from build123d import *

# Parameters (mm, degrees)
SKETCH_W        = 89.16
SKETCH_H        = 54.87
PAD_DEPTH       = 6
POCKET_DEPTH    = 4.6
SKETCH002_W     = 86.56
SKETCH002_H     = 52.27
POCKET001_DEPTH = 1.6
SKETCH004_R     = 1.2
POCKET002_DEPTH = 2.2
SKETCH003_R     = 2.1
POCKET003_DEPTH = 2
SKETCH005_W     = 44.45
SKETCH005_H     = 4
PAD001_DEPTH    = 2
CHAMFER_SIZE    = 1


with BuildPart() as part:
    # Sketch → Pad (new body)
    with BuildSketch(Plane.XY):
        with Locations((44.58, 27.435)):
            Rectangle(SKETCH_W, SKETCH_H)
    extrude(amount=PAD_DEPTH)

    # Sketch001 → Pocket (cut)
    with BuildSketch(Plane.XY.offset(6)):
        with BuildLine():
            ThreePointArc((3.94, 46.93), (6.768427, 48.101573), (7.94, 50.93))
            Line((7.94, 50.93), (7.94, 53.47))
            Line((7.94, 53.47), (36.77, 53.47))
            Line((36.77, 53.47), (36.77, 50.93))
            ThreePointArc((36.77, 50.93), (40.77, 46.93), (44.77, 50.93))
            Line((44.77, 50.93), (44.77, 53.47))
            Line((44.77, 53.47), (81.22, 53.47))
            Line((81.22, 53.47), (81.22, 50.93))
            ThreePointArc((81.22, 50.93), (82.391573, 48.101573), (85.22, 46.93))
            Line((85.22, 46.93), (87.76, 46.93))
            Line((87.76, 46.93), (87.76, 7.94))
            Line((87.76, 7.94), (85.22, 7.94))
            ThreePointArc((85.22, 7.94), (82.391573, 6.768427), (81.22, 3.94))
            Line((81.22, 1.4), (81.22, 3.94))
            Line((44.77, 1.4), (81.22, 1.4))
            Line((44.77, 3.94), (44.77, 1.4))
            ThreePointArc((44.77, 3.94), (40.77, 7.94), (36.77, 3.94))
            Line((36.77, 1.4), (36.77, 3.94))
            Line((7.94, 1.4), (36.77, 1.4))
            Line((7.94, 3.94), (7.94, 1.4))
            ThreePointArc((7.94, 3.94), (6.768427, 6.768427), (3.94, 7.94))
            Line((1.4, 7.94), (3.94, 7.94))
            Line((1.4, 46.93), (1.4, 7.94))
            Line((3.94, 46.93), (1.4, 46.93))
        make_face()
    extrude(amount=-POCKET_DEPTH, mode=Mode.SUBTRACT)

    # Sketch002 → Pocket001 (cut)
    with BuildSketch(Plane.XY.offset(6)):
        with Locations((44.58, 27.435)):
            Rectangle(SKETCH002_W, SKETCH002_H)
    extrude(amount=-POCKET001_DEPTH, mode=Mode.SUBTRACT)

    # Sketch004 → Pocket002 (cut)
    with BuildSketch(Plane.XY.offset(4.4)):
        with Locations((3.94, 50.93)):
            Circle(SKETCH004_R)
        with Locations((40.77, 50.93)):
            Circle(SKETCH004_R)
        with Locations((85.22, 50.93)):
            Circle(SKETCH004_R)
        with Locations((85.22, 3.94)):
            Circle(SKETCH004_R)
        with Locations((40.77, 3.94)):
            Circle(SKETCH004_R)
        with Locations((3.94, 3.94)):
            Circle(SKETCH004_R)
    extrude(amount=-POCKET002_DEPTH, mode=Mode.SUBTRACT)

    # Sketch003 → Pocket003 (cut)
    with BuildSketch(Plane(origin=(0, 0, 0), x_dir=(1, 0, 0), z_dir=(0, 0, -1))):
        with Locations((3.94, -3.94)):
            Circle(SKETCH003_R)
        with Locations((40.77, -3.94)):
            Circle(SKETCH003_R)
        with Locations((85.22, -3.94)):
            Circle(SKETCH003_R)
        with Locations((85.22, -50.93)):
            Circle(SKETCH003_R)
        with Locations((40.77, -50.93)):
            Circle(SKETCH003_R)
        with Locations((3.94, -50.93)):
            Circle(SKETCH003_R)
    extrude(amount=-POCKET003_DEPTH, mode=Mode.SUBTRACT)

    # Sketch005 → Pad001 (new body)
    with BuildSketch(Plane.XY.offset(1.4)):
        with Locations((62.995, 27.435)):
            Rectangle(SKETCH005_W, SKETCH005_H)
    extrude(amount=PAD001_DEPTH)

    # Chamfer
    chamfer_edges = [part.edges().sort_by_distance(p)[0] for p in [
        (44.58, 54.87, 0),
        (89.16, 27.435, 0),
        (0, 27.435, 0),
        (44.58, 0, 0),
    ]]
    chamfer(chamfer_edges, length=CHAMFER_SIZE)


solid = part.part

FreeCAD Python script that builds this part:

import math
import FreeCAD as App
import Part
import Sketcher


def edges_at(feature, points):
    """Names of the edges that pass closest to the given points."""
    edges = feature.Shape.Edges
    near = lambda p: min(range(len(edges)), key=lambda i: edges[i].distToShape(Part.Vertex(*p))[0])
    return sorted({f"Edge{near(p) + 1}" for p in points})

doc = App.newDocument("Part")
params = doc.addObject("Spreadsheet::Sheet", "Params")
for row, (alias, value) in enumerate([
    ("sketch1_width", "89.16 mm"),
    ("sketch1_height", "54.87 mm"),
    ("pad1_length", "6 mm"),
    ("sketch2_radius", "4 mm"),
    ("sketch2_width", "2.54 mm"),
    ("sketch2_width2", "28.83 mm"),
    ("sketch2_width3", "36.45 mm"),
    ("sketch2_height", "38.99 mm"),
    ("pocket1_length", "4.6 mm"),
    ("sketch3_width", "86.56 mm"),
    ("sketch3_height", "52.27 mm"),
    ("pocket2_length", "1.6 mm"),
    ("sketch4_diameter", "2.4 mm"),
    ("pocket3_length", "2.2 mm"),
    ("sketch5_diameter", "4.2 mm"),
    ("pocket4_length", "2 mm"),
    ("sketch6_height", "4 mm"),
    ("sketch6_width", "44.45 mm"),
    ("pad2_length", "2 mm"),
    ("chamfer_size", "1 mm"),
], start=1):
    params.set(f"A{row}", alias)
    params.set(f"B{row}", "=" + value)
    params.setAlias(f"B{row}", alias)

body = doc.addObject("PartDesign::Body", "Body")

sketch1 = body.newObject("Sketcher::SketchObject", "Sketch")
sketch1.AttachmentSupport = (doc.getObject("XY_Plane"), [""])
sketch1.MapMode = "FlatFace"
sketch1.addGeometry([
    Part.LineSegment(App.Vector(0, 54.87, 0), App.Vector(0, 0, 0)),
    Part.LineSegment(App.Vector(0, 0, 0), App.Vector(89.16, 0, 0)),
    Part.LineSegment(App.Vector(89.16, 0, 0), App.Vector(89.16, 54.87, 0)),
    Part.LineSegment(App.Vector(89.16, 54.87, 0), App.Vector(0, 54.87, 0)),
], False)
sketch1.addConstraint([
    Sketcher.Constraint("Coincident", 0, 2, 1, 1),
    Sketcher.Constraint("Coincident", 1, 2, 2, 1),
    Sketcher.Constraint("Coincident", 2, 2, 3, 1),
    Sketcher.Constraint("Coincident", 3, 2, 0, 1),
    Sketcher.Constraint("Vertical", 0),
    Sketcher.Constraint("Horizontal", 1),
    Sketcher.Constraint("Vertical", 2),
    Sketcher.Constraint("Horizontal", 3),
    Sketcher.Constraint("Coincident", 0, 2, -1, 1),
    Sketcher.Constraint("DistanceX", 1, 1, 1, 2, 89.16),
    Sketcher.Constraint("DistanceY", 0, 2, 0, 1, 54.87),
])
sketch1.setExpression("Constraints[9]", "Params.sketch1_width")
sketch1.setExpression("Constraints[10]", "Params.sketch1_height")
pad1 = body.newObject("PartDesign::Pad", "Pad")
pad1.Profile = sketch1
pad1.setExpression("Length", "Params.pad1_length")

sketch2 = body.newObject("Sketcher::SketchObject", "Sketch001")
sketch2.AttachmentSupport = (doc.getObject("XY_Plane"), [""])
sketch2.MapMode = "FlatFace"
sketch2.AttachmentOffset = App.Placement(App.Vector(0, 0, 6), App.Rotation())
sketch2.addGeometry([
    Part.ArcOfCircle(Part.Circle(App.Vector(3.94, 50.93, 0), App.Vector(0, 0, 1), 4), math.radians(-89.999994), math.radians(-0.000006)),
    Part.LineSegment(App.Vector(3.94, 46.93, 0), App.Vector(1.4, 46.93, 0)),
    Part.LineSegment(App.Vector(1.4, 46.93, 0), App.Vector(1.4, 7.94, 0)),
    Part.LineSegment(App.Vector(1.4, 7.94, 0), App.Vector(3.94, 7.94, 0)),
    Part.ArcOfCircle(Part.Circle(App.Vector(3.94, 3.94, 0), App.Vector(0, 0, 1), 4), math.radians(0.000006), math.radians(89.999994)),
    Part.LineSegment(App.Vector(7.94, 3.94, 0), App.Vector(7.94, 1.4, 0)),
    Part.LineSegment(App.Vector(7.94, 1.4, 0), App.Vector(36.77, 1.4, 0)),
    Part.LineSegment(App.Vector(36.77, 1.4, 0), App.Vector(36.77, 3.94, 0)),
    Part.ArcOfCircle(Part.Circle(App.Vector(40.77, 3.94, 0), App.Vector(0, 0, 1), 4), math.radians(0), math.radians(180)),
    Part.LineSegment(App.Vector(44.77, 3.94, 0), App.Vector(44.77, 1.4, 0)),
    Part.LineSegment(App.Vector(44.77, 1.4, 0), App.Vector(81.22, 1.4, 0)),
    Part.LineSegment(App.Vector(81.22, 1.4, 0), App.Vector(81.22, 3.94, 0)),
    Part.ArcOfCircle(Part.Circle(App.Vector(85.22, 3.94, 0), App.Vector(0, 0, 1), 4), math.radians(90.000006), math.radians(179.999994)),
    Part.LineSegment(App.Vector(85.22, 7.94, 0), App.Vector(87.76, 7.94, 0)),
    Part.LineSegment(App.Vector(87.76, 7.94, 0), App.Vector(87.76, 46.93, 0)),
    Part.LineSegment(App.Vector(87.76, 46.93, 0), App.Vector(85.22, 46.93, 0)),
    Part.ArcOfCircle(Part.Circle(App.Vector(85.22, 50.93, 0), App.Vector(0, 0, 1), 4), math.radians(-179.999994), math.radians(-90.000006)),
    Part.LineSegment(App.Vector(81.22, 50.93, 0), App.Vector(81.22, 53.47, 0)),
    Part.LineSegment(App.Vector(81.22, 53.47, 0), App.Vector(44.77, 53.47, 0)),
    Part.LineSegment(App.Vector(44.77, 53.47, 0), App.Vector(44.77, 50.93, 0)),
    Part.ArcOfCircle(Part.Circle(App.Vector(40.77, 50.93, 0), App.Vector(0, 0, 1), 4), math.radians(180), math.radians(360)),
    Part.LineSegment(App.Vector(36.77, 50.93, 0), App.Vector(36.77, 53.47, 0)),
    Part.LineSegment(App.Vector(36.77, 53.47, 0), App.Vector(7.94, 53.47, 0)),
    Part.LineSegment(App.Vector(7.94, 53.47, 0), App.Vector(7.94, 50.93, 0)),
], False)
sketch2.addConstraint([
    Sketcher.Constraint("Tangent", 0, 1, 1, 1),
    Sketcher.Constraint("Coincident", 1, 2, 2, 1),
    Sketcher.Constraint("Coincident", 2, 2, 3, 1),
    Sketcher.Constraint("Tangent", 3, 2, 4, 2),
    Sketcher.Constraint("Tangent", 4, 1, 5, 1),
    Sketcher.Constraint("Coincident", 5, 2, 6, 1),
    Sketcher.Constraint("Coincident", 6, 2, 7, 1),
    Sketcher.Constraint("Tangent", 7, 2, 8, 2),
    Sketcher.Constraint("Tangent", 8, 1, 9, 1),
    Sketcher.Constraint("Coincident", 9, 2, 10, 1),
    Sketcher.Constraint("Coincident", 10, 2, 11, 1),
    Sketcher.Constraint("Tangent", 11, 2, 12, 2),
    Sketcher.Constraint("Tangent", 12, 1, 13, 1),
    Sketcher.Constraint("Coincident", 13, 2, 14, 1),
    Sketcher.Constraint("Coincident", 14, 2, 15, 1),
    Sketcher.Constraint("Tangent", 15, 2, 16, 2),
    Sketcher.Constraint("Tangent", 16, 1, 17, 1),
    Sketcher.Constraint("Coincident", 17, 2, 18, 1),
    Sketcher.Constraint("Coincident", 18, 2, 19, 1),
    Sketcher.Constraint("Tangent", 19, 2, 20, 2),
    Sketcher.Constraint("Tangent", 20, 1, 21, 1),
    Sketcher.Constraint("Coincident", 21, 2, 22, 1),
    Sketcher.Constraint("Coincident", 22, 2, 23, 1),
    Sketcher.Constraint("Tangent", 23, 2, 0, 2),
    Sketcher.Constraint("Horizontal", 1),
    Sketcher.Constraint("Vertical", 2),
    Sketcher.Constraint("Horizontal", 3),
    Sketcher.Constraint("Vertical", 5),
    Sketcher.Constraint("Horizontal", 6),
    Sketcher.Constraint("Vertical", 7),
    Sketcher.Constraint("Vertical", 9),
    Sketcher.Constraint("Horizontal", 10),
    Sketcher.Constraint("Vertical", 11),
    Sketcher.Constraint("Horizontal", 13),
    Sketcher.Constraint("Vertical", 14),
    Sketcher.Constraint("Horizontal", 15),
    Sketcher.Constraint("Vertical", 17),
    Sketcher.Constraint("Horizontal", 18),
    Sketcher.Constraint("Vertical", 19),
    Sketcher.Constraint("Vertical", 21),
    Sketcher.Constraint("Horizontal", 22),
    Sketcher.Constraint("Vertical", 23),
    Sketcher.Constraint("Equal", 0, 4),
    Sketcher.Constraint("Equal", 4, 8),
    Sketcher.Constraint("Equal", 8, 12),
    Sketcher.Constraint("Equal", 12, 16),
    Sketcher.Constraint("Equal", 16, 20),
    Sketcher.Constraint("Horizontal", 4, 3, 8, 3),
    Sketcher.Constraint("Horizontal", 8, 3, 12, 3),
    Sketcher.Constraint("Horizontal", 0, 3, 16, 3),
    Sketcher.Constraint("Horizontal", 16, 3, 20, 3),
    Sketcher.Constraint("Horizontal", 6, 2, 9, 2),
    Sketcher.Constraint("Horizontal", 18, 2, 21, 2),
    Sketcher.Constraint("Vertical", 0, 3, 4, 3),
    Sketcher.Constraint("Vertical", 12, 3, 16, 3),
    Sketcher.Constraint("Vertical", 8, 3, 20, 3),
    Sketcher.Constraint("Equal", 3, 13),
    Sketcher.Constraint("Equal", 15, 5),
    Sketcher.Constraint("Equal", 11, 17),
    Sketcher.Constraint("Radius", 0, 4.0),
    Sketcher.Constraint("DistanceX", 1, 2, 1, 1, 2.54),
    Sketcher.Constraint("DistanceX", 6, 1, 6, 2, 28.83),
    Sketcher.Constraint("DistanceX", 10, 1, 10, 2, 36.45),
    Sketcher.Constraint("DistanceY", 2, 2, 2, 1, 38.99),
    Sketcher.Constraint("DistanceX", -1, 1, 1, 2, 1.4),
    Sketcher.Constraint("DistanceY", -1, 1, 5, 2, 1.4),
])
sketch2.setExpression("Constraints[59]", "Params.sketch2_radius")
sketch2.setExpression("Constraints[60]", "Params.sketch2_width")
sketch2.setExpression("Constraints[61]", "Params.sketch2_width2")
sketch2.setExpression("Constraints[62]", "Params.sketch2_width3")
sketch2.setExpression("Constraints[63]", "Params.sketch2_height")
pocket1 = body.newObject("PartDesign::Pocket", "Pocket")
pocket1.Profile = sketch2
pocket1.setExpression("Length", "Params.pocket1_length")

sketch3 = body.newObject("Sketcher::SketchObject", "Sketch002")
sketch3.AttachmentSupport = (doc.getObject("XY_Plane"), [""])
sketch3.MapMode = "FlatFace"
sketch3.AttachmentOffset = App.Placement(App.Vector(0, 0, 6), App.Rotation())
sketch3.addGeometry([
    Part.LineSegment(App.Vector(1.3, 53.57, 0), App.Vector(1.3, 1.3, 0)),
    Part.LineSegment(App.Vector(1.3, 1.3, 0), App.Vector(87.86, 1.3, 0)),
    Part.LineSegment(App.Vector(87.86, 1.3, 0), App.Vector(87.86, 53.57, 0)),
    Part.LineSegment(App.Vector(87.86, 53.57, 0), App.Vector(1.3, 53.57, 0)),
], False)
sketch3.addConstraint([
    Sketcher.Constraint("Coincident", 0, 2, 1, 1),
    Sketcher.Constraint("Coincident", 1, 2, 2, 1),
    Sketcher.Constraint("Coincident", 2, 2, 3, 1),
    Sketcher.Constraint("Coincident", 3, 2, 0, 1),
    Sketcher.Constraint("Vertical", 0),
    Sketcher.Constraint("Horizontal", 1),
    Sketcher.Constraint("Vertical", 2),
    Sketcher.Constraint("Horizontal", 3),
    Sketcher.Constraint("DistanceX", 1, 1, 1, 2, 86.56),
    Sketcher.Constraint("DistanceY", 0, 2, 0, 1, 52.27),
    Sketcher.Constraint("DistanceX", -1, 1, 0, 2, 1.3),
    Sketcher.Constraint("DistanceY", -1, 1, 0, 2, 1.3),
])
sketch3.setExpression("Constraints[8]", "Params.sketch3_width")
sketch3.setExpression("Constraints[9]", "Params.sketch3_height")
pocket2 = body.newObject("PartDesign::Pocket", "Pocket001")
pocket2.Profile = sketch3
pocket2.setExpression("Length", "Params.pocket2_length")

sketch4 = body.newObject("Sketcher::SketchObject", "Sketch003")
sketch4.AttachmentSupport = (doc.getObject("XY_Plane"), [""])
sketch4.MapMode = "FlatFace"
sketch4.AttachmentOffset = App.Placement(App.Vector(0, 0, 4.4), App.Rotation())
sketch4.addGeometry([
    Part.Circle(App.Vector(3.94, 50.93, 0), App.Vector(0, 0, 1), 1.2),
    Part.Circle(App.Vector(40.77, 50.93, 0), App.Vector(0, 0, 1), 1.2),
    Part.Circle(App.Vector(85.22, 50.93, 0), App.Vector(0, 0, 1), 1.2),
    Part.Circle(App.Vector(85.22, 3.94, 0), App.Vector(0, 0, 1), 1.2),
    Part.Circle(App.Vector(40.77, 3.94, 0), App.Vector(0, 0, 1), 1.2),
    Part.Circle(App.Vector(3.94, 3.94, 0), App.Vector(0, 0, 1), 1.2),
], False)
sketch4.addConstraint([
    Sketcher.Constraint("Equal", 0, 1),
    Sketcher.Constraint("Equal", 1, 2),
    Sketcher.Constraint("Equal", 2, 3),
    Sketcher.Constraint("Equal", 3, 4),
    Sketcher.Constraint("Equal", 4, 5),
    Sketcher.Constraint("Horizontal", 0, 3, 1, 3),
    Sketcher.Constraint("Horizontal", 1, 3, 2, 3),
    Sketcher.Constraint("Horizontal", 3, 3, 4, 3),
    Sketcher.Constraint("Horizontal", 4, 3, 5, 3),
    Sketcher.Constraint("Vertical", 2, 3, 3, 3),
    Sketcher.Constraint("Vertical", 1, 3, 4, 3),
    Sketcher.Constraint("Vertical", 0, 3, 5, 3),
    Sketcher.Constraint("Diameter", 0, 2.4),
    Sketcher.Constraint("DistanceX", -1, 1, 0, 3, 3.94),
    Sketcher.Constraint("DistanceY", -1, 1, 0, 3, 50.93),
    Sketcher.Constraint("DistanceX", -1, 1, 1, 3, 40.77),
    Sketcher.Constraint("DistanceX", -1, 1, 2, 3, 85.22),
    Sketcher.Constraint("DistanceY", -1, 1, 3, 3, 3.94),
])
sketch4.setExpression("Constraints[12]", "Params.sketch4_diameter")
pocket3 = body.newObject("PartDesign::Pocket", "Pocket002")
pocket3.Profile = sketch4
pocket3.setExpression("Length", "Params.pocket3_length")

sketch5 = body.newObject("Sketcher::SketchObject", "Sketch004")
sketch5.AttachmentSupport = (doc.getObject("XY_Plane"), [""])
sketch5.MapMode = "FlatFace"
sketch5.addGeometry([
    Part.Circle(App.Vector(3.94, 3.94, 0), App.Vector(0, 0, 1), 2.1),
    Part.Circle(App.Vector(40.77, 3.94, 0), App.Vector(0, 0, 1), 2.1),
    Part.Circle(App.Vector(85.22, 3.94, 0), App.Vector(0, 0, 1), 2.1),
    Part.Circle(App.Vector(85.22, 50.93, 0), App.Vector(0, 0, 1), 2.1),
    Part.Circle(App.Vector(40.77, 50.93, 0), App.Vector(0, 0, 1), 2.1),
    Part.Circle(App.Vector(3.94, 50.93, 0), App.Vector(0, 0, 1), 2.1),
], False)
sketch5.addConstraint([
    Sketcher.Constraint("Equal", 0, 1),
    Sketcher.Constraint("Equal", 1, 2),
    Sketcher.Constraint("Equal", 2, 3),
    Sketcher.Constraint("Equal", 3, 4),
    Sketcher.Constraint("Equal", 4, 5),
    Sketcher.Constraint("Horizontal", 0, 3, 1, 3),
    Sketcher.Constraint("Horizontal", 1, 3, 2, 3),
    Sketcher.Constraint("Horizontal", 3, 3, 4, 3),
    Sketcher.Constraint("Horizontal", 4, 3, 5, 3),
    Sketcher.Constraint("Vertical", 2, 3, 3, 3),
    Sketcher.Constraint("Vertical", 1, 3, 4, 3),
    Sketcher.Constraint("Vertical", 0, 3, 5, 3),
    Sketcher.Constraint("Diameter", 0, 4.2),
    Sketcher.Constraint("DistanceX", -1, 1, 0, 3, 3.94),
    Sketcher.Constraint("DistanceY", -1, 1, 0, 3, 3.94),
    Sketcher.Constraint("DistanceX", -1, 1, 1, 3, 40.77),
    Sketcher.Constraint("DistanceX", -1, 1, 2, 3, 85.22),
    Sketcher.Constraint("DistanceY", -1, 1, 3, 3, 50.93),
])
sketch5.setExpression("Constraints[12]", "Params.sketch5_diameter")
pocket4 = body.newObject("PartDesign::Pocket", "Pocket003")
pocket4.Profile = sketch5
pocket4.setExpression("Length", "Params.pocket4_length")
pocket4.Reversed = True

sketch6 = body.newObject("Sketcher::SketchObject", "Sketch005")
sketch6.AttachmentSupport = (doc.getObject("XY_Plane"), [""])
sketch6.MapMode = "FlatFace"
sketch6.AttachmentOffset = App.Placement(App.Vector(0, 0, 1.4), App.Rotation())
sketch6.addGeometry([
    Part.LineSegment(App.Vector(40.77, 29.435, 0), App.Vector(40.77, 25.435, 0)),
    Part.LineSegment(App.Vector(40.77, 25.435, 0), App.Vector(85.22, 25.435, 0)),
    Part.LineSegment(App.Vector(85.22, 25.435, 0), App.Vector(85.22, 29.435, 0)),
    Part.LineSegment(App.Vector(85.22, 29.435, 0), App.Vector(40.77, 29.435, 0)),
], False)
sketch6.addConstraint([
    Sketcher.Constraint("Coincident", 0, 2, 1, 1),
    Sketcher.Constraint("Coincident", 1, 2, 2, 1),
    Sketcher.Constraint("Coincident", 2, 2, 3, 1),
    Sketcher.Constraint("Coincident", 3, 2, 0, 1),
    Sketcher.Constraint("Vertical", 0),
    Sketcher.Constraint("Horizontal", 1),
    Sketcher.Constraint("Vertical", 2),
    Sketcher.Constraint("Horizontal", 3),
    Sketcher.Constraint("DistanceY", 0, 2, 0, 1, 4.0),
    Sketcher.Constraint("DistanceX", 1, 1, 1, 2, 44.45),
    Sketcher.Constraint("DistanceX", -1, 1, 0, 2, 40.77),
    Sketcher.Constraint("DistanceY", -1, 1, 0, 2, 25.435),
])
sketch6.setExpression("Constraints[8]", "Params.sketch6_height")
sketch6.setExpression("Constraints[9]", "Params.sketch6_width")
pad2 = body.newObject("PartDesign::Pad", "Pad001")
pad2.Profile = sketch6
pad2.setExpression("Length", "Params.pad2_length")
doc.recompute()

chamfer = body.newObject("PartDesign::Chamfer", "Chamfer")
chamfer.Base = (pad2, edges_at(pad2, [
    (44.58, 54.87, 0),
    (89.16, 27.435, 0),
    (0, 27.435, 0),
    (44.58, 0, 0),
]))
chamfer.setExpression("Size", "Params.chamfer_size")

doc.recompute()
